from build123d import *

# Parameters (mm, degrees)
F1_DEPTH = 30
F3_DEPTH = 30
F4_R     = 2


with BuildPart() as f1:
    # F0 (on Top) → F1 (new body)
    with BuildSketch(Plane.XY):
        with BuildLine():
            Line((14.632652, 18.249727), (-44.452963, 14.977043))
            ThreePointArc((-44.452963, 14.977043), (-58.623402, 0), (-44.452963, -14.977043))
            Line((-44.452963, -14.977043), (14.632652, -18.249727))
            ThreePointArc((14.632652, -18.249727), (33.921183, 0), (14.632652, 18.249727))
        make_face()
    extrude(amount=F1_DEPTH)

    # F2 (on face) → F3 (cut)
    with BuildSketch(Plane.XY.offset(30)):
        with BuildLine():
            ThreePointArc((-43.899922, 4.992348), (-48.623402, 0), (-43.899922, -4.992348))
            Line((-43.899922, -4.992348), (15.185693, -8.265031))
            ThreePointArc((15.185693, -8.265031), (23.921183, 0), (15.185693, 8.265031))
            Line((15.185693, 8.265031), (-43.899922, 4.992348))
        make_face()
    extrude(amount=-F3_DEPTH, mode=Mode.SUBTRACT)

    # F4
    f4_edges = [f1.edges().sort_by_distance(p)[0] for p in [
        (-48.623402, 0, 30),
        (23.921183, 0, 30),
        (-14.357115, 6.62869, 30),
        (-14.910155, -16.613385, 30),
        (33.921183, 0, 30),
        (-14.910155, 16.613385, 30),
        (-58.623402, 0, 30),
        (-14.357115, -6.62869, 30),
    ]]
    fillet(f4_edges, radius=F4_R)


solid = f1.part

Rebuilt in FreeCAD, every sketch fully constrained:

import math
import FreeCAD as App
import Part
import Sketcher

V = App.Vector
Q = App.Units.Quantity


def edges_at(feature, points):
    """Names of the edges that pass closest to the given points."""
    edges = feature.Shape.Edges
    near = lambda p: min(range(len(edges)), key=lambda i: edges[i].distToShape(Part.Vertex(*p))[0])
    return sorted({f"Edge{near(p) + 1}" for p in points})

doc = App.newDocument("Part")
body = doc.addObject("PartDesign::Body", "Body")

sketch1 = doc.addObject("Sketcher::SketchObject", "Sketch")
body.addObject(sketch1)
sketch1.AttachmentSupport = (doc.XY_Plane, [""])
sketch1.MapMode = "FlatFace"
sketch1.addGeometry([
    Part.LineSegment(V(14.632652, 18.249727, 0), V(-44.452963, 14.977043, 0)),
    Part.ArcOfCircle(Part.Circle(V(-43.623402, 0, 0), V(0, 0, 1), 15), math.radians(93.170306), math.radians(266.829694)),
    Part.LineSegment(V(-44.452963, -14.977043, 0), V(14.632652, -18.249727, 0)),
    Part.ArcOfCircle(Part.Circle(V(15.643483, 0, 0), V(0, 0, 1), 18.2777), math.radians(-93.170307), math.radians(93.170307)),
], False)
sketch1.addConstraint([
    Sketcher.Constraint("Tangent", 0, 2, 1, 1),
    Sketcher.Constraint("Tangent", 1, 2, 2, 1),
    Sketcher.Constraint("Tangent", 2, 2, 3, 1),
    Sketcher.Constraint("Tangent", 3, 2, 0, 1),
    Sketcher.Constraint("Symmetric", 0, 2, 1, 2, -1),
    Sketcher.Constraint("Radius", 1, Q("15 mm")),
    Sketcher.Constraint("Radius", 3, Q("18.2777 mm")),
    Sketcher.Constraint("Distance", 0, Q("59.176181 mm")),
    Sketcher.Constraint("DistanceX", -1, 1, 3, 2, Q("14.632652 mm")),
])
pad1 = doc.addObject("PartDesign::Pad", "Pad")
body.addObject(pad1)
pad1.Profile = sketch1
pad1.Length = 30

sketch2 = doc.addObject("Sketcher::SketchObject", "Sketch001")
body.addObject(sketch2)
sketch2.AttachmentSupport = (doc.XY_Plane, [""])
sketch2.MapMode = "FlatFace"
sketch2.AttachmentOffset = App.Placement(V(0, 0, 30), App.Rotation())
sketch2.addGeometry([
    Part.ArcOfCircle(Part.Circle(V(-43.623402, 0, 0), V(0, 0, 1), 5), math.radians(93.170305), math.radians(266.829695)),
    Part.LineSegment(V(-43.899922, -4.992348, 0), V(15.185693, -8.265031, 0)),
    Part.ArcOfCircle(Part.Circle(V(15.643483, 0, 0), V(0, 0, 1), 8.2777), math.radians(-93.170307), math.radians(93.170307)),
    Part.LineSegment(V(15.185693, 8.265031, 0), V(-43.899922, 4.992348, 0)),
], False)
sketch2.addConstraint([
    Sketcher.Constraint("Tangent", 0, 2, 1, 1),
    Sketcher.Constraint("Tangent", 1, 2, 2, 1),
    Sketcher.Constraint("Tangent", 2, 2, 3, 1),
    Sketcher.Constraint("Tangent", 3, 2, 0, 1),
    Sketcher.Constraint("Symmetric", 1, 2, 2, 2, -1),
    Sketcher.Constraint("Radius", 0, Q("5 mm")),
    Sketcher.Constraint("Radius", 2, Q("8.2777 mm")),
    Sketcher.Constraint("DistanceX", 0, 3, -1, 1, Q("43.623402 mm")),
    Sketcher.Constraint("Distance", 1, Q("59.176181 mm")),
])
pocket1 = doc.addObject("PartDesign::Pocket", "Pocket")
body.addObject(pocket1)
pocket1.Profile = sketch2
pocket1.Length = 30
doc.recompute()

fillet = doc.addObject("PartDesign::Fillet", "Fillet")
body.addObject(fillet)
fillet.Base = (pocket1, edges_at(pocket1, [
    (-48.623, 0, 30),
    (23.921, 0, 30),
    (-14.357, 6.629, 30),
    (-14.91, -16.613, 30),
    (33.921, 0, 30),
    (-14.91, 16.613, 30),
    (-58.623, 0, 30),
    (-14.357, -6.629, 30),
]))
fillet.Radius = 2

doc.recompute()
